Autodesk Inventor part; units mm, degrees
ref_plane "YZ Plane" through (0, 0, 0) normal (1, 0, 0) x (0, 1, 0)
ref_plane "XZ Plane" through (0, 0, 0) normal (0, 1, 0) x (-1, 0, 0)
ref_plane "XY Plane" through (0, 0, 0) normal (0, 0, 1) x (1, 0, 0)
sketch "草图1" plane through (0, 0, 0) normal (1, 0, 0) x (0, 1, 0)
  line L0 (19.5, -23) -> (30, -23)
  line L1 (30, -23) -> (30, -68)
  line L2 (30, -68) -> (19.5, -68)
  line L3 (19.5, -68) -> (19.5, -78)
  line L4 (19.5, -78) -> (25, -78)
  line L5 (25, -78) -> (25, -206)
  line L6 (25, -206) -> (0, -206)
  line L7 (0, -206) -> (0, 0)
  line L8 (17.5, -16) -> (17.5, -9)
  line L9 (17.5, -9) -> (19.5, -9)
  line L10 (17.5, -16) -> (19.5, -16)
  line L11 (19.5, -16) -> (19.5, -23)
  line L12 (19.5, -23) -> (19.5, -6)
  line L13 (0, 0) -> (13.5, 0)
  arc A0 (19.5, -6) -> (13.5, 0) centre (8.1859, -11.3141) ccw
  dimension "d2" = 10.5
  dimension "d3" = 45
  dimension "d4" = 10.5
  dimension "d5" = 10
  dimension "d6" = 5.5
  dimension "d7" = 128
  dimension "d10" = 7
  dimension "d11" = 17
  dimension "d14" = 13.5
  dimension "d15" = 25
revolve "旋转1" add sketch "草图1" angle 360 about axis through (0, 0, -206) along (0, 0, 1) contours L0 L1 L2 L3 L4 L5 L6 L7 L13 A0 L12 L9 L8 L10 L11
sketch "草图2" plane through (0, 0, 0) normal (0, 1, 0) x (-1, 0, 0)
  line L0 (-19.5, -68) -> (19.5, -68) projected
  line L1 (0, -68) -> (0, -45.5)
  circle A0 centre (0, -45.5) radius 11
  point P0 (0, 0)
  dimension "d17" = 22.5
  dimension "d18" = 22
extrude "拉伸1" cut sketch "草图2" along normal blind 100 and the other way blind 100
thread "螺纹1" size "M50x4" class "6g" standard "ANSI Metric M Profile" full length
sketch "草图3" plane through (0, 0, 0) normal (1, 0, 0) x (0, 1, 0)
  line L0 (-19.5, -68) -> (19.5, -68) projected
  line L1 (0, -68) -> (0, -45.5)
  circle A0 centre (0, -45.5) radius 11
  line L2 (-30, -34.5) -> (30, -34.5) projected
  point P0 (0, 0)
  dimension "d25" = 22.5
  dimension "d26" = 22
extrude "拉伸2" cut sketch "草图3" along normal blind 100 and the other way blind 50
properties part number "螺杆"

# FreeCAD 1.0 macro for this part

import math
import FreeCAD as App
import Part
import Sketcher

V = App.Vector

doc = App.newDocument("Part")
body = doc.addObject("PartDesign::Body", "Body")

sketch1 = body.newObject("Sketcher::SketchObject", "Sketch")
sketch1.AttachmentSupport = (doc.getObject("YZ_Plane"), [""])
sketch1.MapMode = "FlatFace"
sketch1.addGeometry([
    Part.LineSegment(V(30, -23, 0), V(19.5, -23, 0)),
    Part.LineSegment(V(19.5, -23, 0), V(19.5, -16, 0)),
    Part.LineSegment(V(19.5, -16, 0), V(17.5, -16, 0)),
    Part.LineSegment(V(17.5, -16, 0), V(17.5, -9, 0)),
    Part.LineSegment(V(17.5, -9, 0), V(19.5, -9, 0)),
    Part.LineSegment(V(19.5, -9, 0), V(19.5, -6, 0)),
    Part.ArcOfCircle(Part.Circle(V(8.2, -11.3, 0), V(0, 0, 1), 12.5), math.radians(25), math.radians(65)),
    Part.LineSegment(V(13.5, 0, 0), V(0, 0, 0)),
    Part.LineSegment(V(0, 0, 0), V(0, -206, 0)),
    Part.LineSegment(V(0, -206, 0), V(25, -206, 0)),
    Part.LineSegment(V(25, -206, 0), V(25, -78, 0)),
    Part.LineSegment(V(25, -78, 0), V(19.5, -78, 0)),
    Part.LineSegment(V(19.5, -78, 0), V(19.5, -68, 0)),
    Part.LineSegment(V(19.5, -68, 0), V(30, -68, 0)),
    Part.LineSegment(V(30, -68, 0), V(30, -23, 0)),
], False)
sketch1.addConstraint([
    Sketcher.Constraint("Coincident", 0, 2, 1, 1),
    Sketcher.Constraint("Coincident", 1, 2, 2, 1),
    Sketcher.Constraint("Coincident", 2, 2, 3, 1),
    Sketcher.Constraint("Coincident", 3, 2, 4, 1),
    Sketcher.Constraint("Coincident", 4, 2, 5, 1),
    Sketcher.Constraint("Coincident", 5, 2, 6, 1),
    Sketcher.Constraint("Coincident", 6, 2, 7, 1),
    Sketcher.Constraint("Coincident", 7, 2, 8, 1),
    Sketcher.Constraint("Coincident", 8, 2, 9, 1),
    Sketcher.Constraint("Coincident", 9, 2, 10, 1),
    Sketcher.Constraint("Coincident", 10, 2, 11, 1),
    Sketcher.Constraint("Coincident", 11, 2, 12, 1),
    Sketcher.Constraint("Coincident", 12, 2, 13, 1),
    Sketcher.Constraint("Coincident", 13, 2, 14, 1),
    Sketcher.Constraint("Coincident", 14, 2, 0, 1),
    Sketcher.Constraint("Horizontal", 0),
    Sketcher.Constraint("Vertical", 1),
    Sketcher.Constraint("Horizontal", 2),
    Sketcher.Constraint("Vertical", 3),
    Sketcher.Constraint("Horizontal", 4),
    Sketcher.Constraint("Vertical", 5),
    Sketcher.Constraint("Horizontal", 7),
    Sketcher.Constraint("Vertical", 8),
    Sketcher.Constraint("Horizontal", 9),
    Sketcher.Constraint("Vertical", 10),
    Sketcher.Constraint("Horizontal", 11),
    Sketcher.Constraint("Vertical", 12),
    Sketcher.Constraint("Horizontal", 13),
    Sketcher.Constraint("Vertical", 14),
    Sketcher.Constraint("Coincident", 7, 2, -1, 1),
    Sketcher.Constraint("Vertical", 1, 2, 4, 2),
    Sketcher.Constraint("Vertical", 5, 2, 11, 2),
    Sketcher.Constraint("Equal", 1, 3),
    Sketcher.Constraint("Radius", 6, 12.5),
    Sketcher.Constraint("DistanceX", 9, 1, 9, 2, 25.0),
    Sketcher.Constraint("DistanceY", 1, 1, 1, 2, 7.0),
    Sketcher.Constraint("DistanceY", 10, 1, 10, 2, 128.0),
    Sketcher.Constraint("DistanceY", 12, 1, 12, 2, 10.0),
    Sketcher.Constraint("DistanceY", 14, 1, 14, 2, 45.0),
    Sketcher.Constraint("DistanceX", 0, 2, 0, 1, 10.5),
    Sketcher.Constraint("DistanceX", 7, 2, 7, 1, 13.5),
    Sketcher.Constraint("DistanceX", 11, 2, 11, 1, 5.5),
    Sketcher.Constraint("DistanceY", 1, 2, 5, 2, 10.0),
    Sketcher.Constraint("DistanceX", 2, 2, 2, 1, 2.0),
    Sketcher.Constraint("DistanceY", 8, 2, 8, 1, 206.0),
])
revolution = body.newObject("PartDesign::Revolution", "Revolution")
revolution.Profile = sketch1
revolution.ReferenceAxis = (sketch1, ["V_Axis"])
revolution.Angle = 360

sketch2 = body.newObject("Sketcher::SketchObject", "Sketch001")
sketch2.AttachmentSupport = (doc.getObject("XZ_Plane"), [""])
sketch2.MapMode = "FlatFace"
sketch2.addGeometry(Part.Circle(V(0, -46, 0), V(0, 0, 1), 11), False)
sketch2.addConstraint([
    Sketcher.Constraint("PointOnObject", 0, 3, -2),
    Sketcher.Constraint("Diameter", 0, 22.0),
    Sketcher.Constraint("DistanceY", 0, 3, -1, 1, 45.5),
])
pocket1 = body.newObject("PartDesign::Pocket", "Pocket")
pocket1.Profile = sketch2
pocket1.Type = "ThroughAll"
pocket1.Midplane = True

sketch3 = body.newObject("Sketcher::SketchObject", "Sketch002")
sketch3.AttachmentSupport = (doc.getObject("YZ_Plane"), [""])
sketch3.MapMode = "FlatFace"
sketch3.addGeometry(Part.Circle(V(0, -46, 0), V(0, 0, 1), 11), False)
sketch3.addConstraint([
    Sketcher.Constraint("PointOnObject", 0, 3, -2),
    Sketcher.Constraint("Diameter", 0, 22.0),
    Sketcher.Constraint("DistanceY", 0, 3, -1, 1, 45.5),
])
pocket2 = body.newObject("PartDesign::Pocket", "Pocket001")
pocket2.Profile = sketch3
pocket2.Type = "ThroughAll"
pocket2.Midplane = True

doc.recompute()
